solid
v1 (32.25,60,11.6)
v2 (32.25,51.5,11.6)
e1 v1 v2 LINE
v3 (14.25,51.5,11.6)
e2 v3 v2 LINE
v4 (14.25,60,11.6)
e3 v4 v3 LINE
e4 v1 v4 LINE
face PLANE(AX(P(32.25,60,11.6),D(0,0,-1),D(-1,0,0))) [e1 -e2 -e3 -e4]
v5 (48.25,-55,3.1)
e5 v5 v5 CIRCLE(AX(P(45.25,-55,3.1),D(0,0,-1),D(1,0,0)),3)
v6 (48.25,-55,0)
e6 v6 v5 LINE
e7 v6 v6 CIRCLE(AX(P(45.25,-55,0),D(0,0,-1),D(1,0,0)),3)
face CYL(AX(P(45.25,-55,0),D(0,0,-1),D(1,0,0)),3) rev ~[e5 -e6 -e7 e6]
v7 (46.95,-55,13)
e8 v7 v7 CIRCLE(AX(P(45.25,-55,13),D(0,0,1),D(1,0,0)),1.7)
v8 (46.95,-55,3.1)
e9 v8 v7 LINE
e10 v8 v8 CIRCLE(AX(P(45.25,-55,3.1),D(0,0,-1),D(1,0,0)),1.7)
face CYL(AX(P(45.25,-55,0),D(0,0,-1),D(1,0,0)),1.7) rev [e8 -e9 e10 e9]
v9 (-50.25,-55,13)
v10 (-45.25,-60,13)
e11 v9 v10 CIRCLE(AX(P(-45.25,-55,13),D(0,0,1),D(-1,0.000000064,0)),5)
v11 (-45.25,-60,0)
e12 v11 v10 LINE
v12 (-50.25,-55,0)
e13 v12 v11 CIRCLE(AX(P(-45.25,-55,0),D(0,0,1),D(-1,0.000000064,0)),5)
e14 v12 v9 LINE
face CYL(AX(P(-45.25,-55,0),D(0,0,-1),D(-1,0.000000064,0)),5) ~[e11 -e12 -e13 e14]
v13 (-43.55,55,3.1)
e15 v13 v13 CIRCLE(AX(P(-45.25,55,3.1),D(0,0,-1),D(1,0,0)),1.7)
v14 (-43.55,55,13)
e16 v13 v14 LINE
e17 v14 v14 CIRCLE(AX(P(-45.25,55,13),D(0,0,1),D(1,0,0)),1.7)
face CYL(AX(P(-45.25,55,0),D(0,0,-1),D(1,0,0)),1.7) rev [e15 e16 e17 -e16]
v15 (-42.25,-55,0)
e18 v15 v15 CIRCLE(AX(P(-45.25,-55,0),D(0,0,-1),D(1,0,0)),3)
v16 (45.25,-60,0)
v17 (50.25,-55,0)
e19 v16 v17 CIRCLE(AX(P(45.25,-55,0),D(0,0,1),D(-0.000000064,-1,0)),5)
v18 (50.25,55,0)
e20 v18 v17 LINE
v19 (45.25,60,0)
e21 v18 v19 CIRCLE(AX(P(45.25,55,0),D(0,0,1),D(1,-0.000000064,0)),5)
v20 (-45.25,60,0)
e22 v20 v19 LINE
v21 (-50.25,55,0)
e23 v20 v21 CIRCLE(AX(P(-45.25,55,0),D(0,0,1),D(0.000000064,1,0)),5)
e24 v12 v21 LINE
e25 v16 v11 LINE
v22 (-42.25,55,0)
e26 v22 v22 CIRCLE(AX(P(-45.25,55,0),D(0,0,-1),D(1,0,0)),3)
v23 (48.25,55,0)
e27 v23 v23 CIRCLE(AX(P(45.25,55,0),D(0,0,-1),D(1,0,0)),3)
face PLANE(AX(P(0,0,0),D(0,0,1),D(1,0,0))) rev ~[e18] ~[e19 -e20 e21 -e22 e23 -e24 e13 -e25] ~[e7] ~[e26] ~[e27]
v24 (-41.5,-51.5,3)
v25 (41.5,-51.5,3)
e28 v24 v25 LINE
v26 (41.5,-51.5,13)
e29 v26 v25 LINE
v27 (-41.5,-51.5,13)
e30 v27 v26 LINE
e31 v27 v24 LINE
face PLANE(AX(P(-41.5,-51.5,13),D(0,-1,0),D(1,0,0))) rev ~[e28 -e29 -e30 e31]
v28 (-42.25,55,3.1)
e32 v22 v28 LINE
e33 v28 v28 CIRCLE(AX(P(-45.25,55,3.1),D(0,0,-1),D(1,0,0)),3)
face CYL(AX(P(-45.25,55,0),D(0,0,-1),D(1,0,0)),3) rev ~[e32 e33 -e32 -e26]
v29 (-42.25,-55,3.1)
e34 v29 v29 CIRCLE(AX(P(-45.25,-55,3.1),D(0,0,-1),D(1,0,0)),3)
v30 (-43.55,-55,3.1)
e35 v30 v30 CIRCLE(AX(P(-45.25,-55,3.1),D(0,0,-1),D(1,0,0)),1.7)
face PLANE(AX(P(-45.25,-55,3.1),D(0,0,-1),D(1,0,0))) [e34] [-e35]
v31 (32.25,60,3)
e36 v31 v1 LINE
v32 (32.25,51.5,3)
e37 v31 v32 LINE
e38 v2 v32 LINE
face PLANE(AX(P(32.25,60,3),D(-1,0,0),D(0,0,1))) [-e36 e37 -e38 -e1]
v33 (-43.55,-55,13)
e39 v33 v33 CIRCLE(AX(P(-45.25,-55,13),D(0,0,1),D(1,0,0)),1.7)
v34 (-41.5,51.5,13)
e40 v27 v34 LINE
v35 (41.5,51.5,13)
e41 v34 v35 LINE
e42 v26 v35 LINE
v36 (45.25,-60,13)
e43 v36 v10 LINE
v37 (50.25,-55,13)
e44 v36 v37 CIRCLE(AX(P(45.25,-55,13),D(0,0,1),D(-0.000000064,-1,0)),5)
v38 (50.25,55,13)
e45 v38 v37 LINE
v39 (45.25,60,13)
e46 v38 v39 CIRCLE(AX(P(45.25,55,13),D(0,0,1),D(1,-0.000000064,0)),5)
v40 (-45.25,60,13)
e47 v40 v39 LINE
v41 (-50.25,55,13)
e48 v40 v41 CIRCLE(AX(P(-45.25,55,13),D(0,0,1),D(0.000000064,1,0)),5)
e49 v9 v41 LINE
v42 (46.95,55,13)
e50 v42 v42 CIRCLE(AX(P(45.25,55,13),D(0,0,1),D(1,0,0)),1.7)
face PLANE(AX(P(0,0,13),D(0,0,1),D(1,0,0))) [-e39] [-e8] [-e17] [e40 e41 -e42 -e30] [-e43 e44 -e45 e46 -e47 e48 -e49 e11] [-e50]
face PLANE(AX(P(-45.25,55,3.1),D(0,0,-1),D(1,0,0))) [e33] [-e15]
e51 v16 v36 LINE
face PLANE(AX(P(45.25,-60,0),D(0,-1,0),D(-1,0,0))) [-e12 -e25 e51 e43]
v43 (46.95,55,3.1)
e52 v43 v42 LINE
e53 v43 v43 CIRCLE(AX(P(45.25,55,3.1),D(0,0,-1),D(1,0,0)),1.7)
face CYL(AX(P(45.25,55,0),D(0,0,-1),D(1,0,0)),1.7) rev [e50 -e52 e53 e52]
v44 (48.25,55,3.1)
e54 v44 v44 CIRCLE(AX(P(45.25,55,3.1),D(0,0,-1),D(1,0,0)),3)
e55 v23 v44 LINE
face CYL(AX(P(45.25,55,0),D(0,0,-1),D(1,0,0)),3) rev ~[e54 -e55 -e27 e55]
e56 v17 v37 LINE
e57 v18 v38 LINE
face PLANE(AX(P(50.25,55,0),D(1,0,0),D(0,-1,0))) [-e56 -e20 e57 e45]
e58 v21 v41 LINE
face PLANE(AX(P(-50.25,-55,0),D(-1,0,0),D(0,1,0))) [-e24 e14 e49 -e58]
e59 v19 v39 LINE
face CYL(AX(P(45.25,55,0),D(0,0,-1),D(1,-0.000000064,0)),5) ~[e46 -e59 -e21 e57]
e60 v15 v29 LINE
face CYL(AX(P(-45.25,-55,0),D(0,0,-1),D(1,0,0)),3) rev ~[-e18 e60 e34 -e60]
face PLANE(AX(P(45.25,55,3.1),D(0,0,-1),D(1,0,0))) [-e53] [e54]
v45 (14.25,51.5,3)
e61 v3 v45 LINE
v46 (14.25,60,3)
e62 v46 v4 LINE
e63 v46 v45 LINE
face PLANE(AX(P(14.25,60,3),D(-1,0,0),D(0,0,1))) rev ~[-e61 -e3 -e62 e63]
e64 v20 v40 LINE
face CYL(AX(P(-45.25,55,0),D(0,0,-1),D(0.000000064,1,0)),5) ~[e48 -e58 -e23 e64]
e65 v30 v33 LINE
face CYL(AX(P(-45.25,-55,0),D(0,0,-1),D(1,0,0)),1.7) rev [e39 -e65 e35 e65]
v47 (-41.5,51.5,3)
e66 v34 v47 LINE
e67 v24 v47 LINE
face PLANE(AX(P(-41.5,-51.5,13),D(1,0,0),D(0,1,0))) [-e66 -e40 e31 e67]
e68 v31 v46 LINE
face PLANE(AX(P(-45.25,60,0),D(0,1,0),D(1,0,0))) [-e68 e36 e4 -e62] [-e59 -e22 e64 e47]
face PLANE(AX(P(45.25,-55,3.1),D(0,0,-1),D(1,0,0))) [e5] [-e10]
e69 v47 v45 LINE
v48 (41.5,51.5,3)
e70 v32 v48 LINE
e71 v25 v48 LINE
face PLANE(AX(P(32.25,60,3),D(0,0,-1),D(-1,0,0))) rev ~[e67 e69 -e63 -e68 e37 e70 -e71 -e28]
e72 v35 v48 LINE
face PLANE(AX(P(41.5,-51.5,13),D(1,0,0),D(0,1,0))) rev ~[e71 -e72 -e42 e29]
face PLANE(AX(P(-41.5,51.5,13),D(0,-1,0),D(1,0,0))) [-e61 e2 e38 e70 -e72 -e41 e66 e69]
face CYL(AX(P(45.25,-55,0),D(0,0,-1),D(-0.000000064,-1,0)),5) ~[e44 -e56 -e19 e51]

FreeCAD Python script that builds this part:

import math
import FreeCAD as App
import Part
import Sketcher
from FreeCAD import Vector

doc = App.newDocument("Part")
params = doc.addObject("Spreadsheet::Sheet", "Params")
for row, (alias, value) in enumerate([
    ("sketch1_radius", "5 mm"),
    ("sketch1_diameter", "3.4 mm"),
    ("sketch1_height", "110 mm"),
    ("sketch1_width", "90.5 mm"),
    ("pad1_length", "13 mm"),
    ("sketch2_width", "83 mm"),
    ("sketch2_height", "103 mm"),
    ("pocket1_length", "10 mm"),
    ("sketch3_width", "18 mm"),
    ("sketch3_height", "8.6 mm"),
    ("pocket2_length", "11 mm"),
    ("sketch4_diameter", "6 mm"),
    ("pocket3_length", "3.1 mm"),
    ("sketch5_diameter", "6 mm"),
    ("pocket4_length", "3.1 mm"),
    ("sketch6_diameter", "6 mm"),
    ("pocket5_length", "3.1 mm"),
    ("sketch7_diameter", "6 mm"),
    ("pocket6_length", "3.1 mm"),
], start=1):
    params.set(f"A{row}", alias)
    params.set(f"B{row}", "=" + value)
    params.setAlias(f"B{row}", alias)

body = doc.addObject("PartDesign::Body", "Body")

sketch1 = body.newObject("Sketcher::SketchObject", "Sketch")
sketch1.AttachmentSupport = (doc.getObject("XY_Plane"), [""])
sketch1.MapMode = "FlatFace"
sketch1.addGeometry([
    Part.ArcOfCircle(Part.Circle(Vector(-45.3, 55, 0), Vector(0, 0, 1), 5), math.radians(90), math.radians(180)),
    Part.LineSegment(Vector(-50.2, 55, 0), Vector(-50.2, -55, 0)),
    Part.ArcOfCircle(Part.Circle(Vector(-45.3, -55, 0), Vector(0, 0, 1), 5), math.radians(180), math.radians(270)),
    Part.LineSegment(Vector(-45.2, -60, 0), Vector(45.2, -60, 0)),
    Part.ArcOfCircle(Part.Circle(Vector(45.3, -55, 0), Vector(0, 0, 1), 5), math.radians(-90), math.radians(0)),
    Part.LineSegment(Vector(50.2, -55, 0), Vector(50.2, 55, 0)),
    Part.ArcOfCircle(Part.Circle(Vector(45.3, 55, 0), Vector(0, 0, 1), 5), math.radians(0), math.radians(90)),
    Part.LineSegment(Vector(45.2, 60, 0), Vector(-45.2, 60, 0)),
    Part.Circle(Vector(-45.2, -55, 0), Vector(0, 0, 1), 1.7),
    Part.Circle(Vector(45.2, -55, 0), Vector(0, 0, 1), 1.7),
    Part.Circle(Vector(-45.2, 55, 0), Vector(0, 0, 1), 1.7),
    Part.Circle(Vector(45.2, 55, 0), Vector(0, 0, 1), 1.7),
], False)
sketch1.addConstraint([
    Sketcher.Constraint("Tangent", 0, 2, 1, 1),
    Sketcher.Constraint("Tangent", 1, 2, 2, 1),
    Sketcher.Constraint("Tangent", 2, 2, 3, 1),
    Sketcher.Constraint("Tangent", 3, 2, 4, 1),
    Sketcher.Constraint("Tangent", 4, 2, 5, 1),
    Sketcher.Constraint("Tangent", 5, 2, 6, 1),
    Sketcher.Constraint("Tangent", 6, 2, 7, 1),
    Sketcher.Constraint("Tangent", 7, 2, 0, 1),
    Sketcher.Constraint("Vertical", 1),
    Sketcher.Constraint("Horizontal", 3),
    Sketcher.Constraint("Vertical", 5),
    Sketcher.Constraint("Horizontal", 7),
    Sketcher.Constraint("Coincident", 8, 3, 2, 3),
    Sketcher.Constraint("Coincident", 9, 3, 4, 3),
    Sketcher.Constraint("Coincident", 10, 3, 0, 3),
    Sketcher.Constraint("Coincident", 11, 3, 6, 3),
    Sketcher.Constraint("Equal", 0, 2),
    Sketcher.Constraint("Equal", 2, 4),
    Sketcher.Constraint("Equal", 4, 6),
    Sketcher.Constraint("Equal", 8, 9),
    Sketcher.Constraint("Equal", 9, 10),
    Sketcher.Constraint("Equal", 10, 11),
    Sketcher.Constraint("Symmetric", 0, 3, 4, 3, -1, 1),
    Sketcher.Constraint("Radius", 0, 5.0),
    Sketcher.Constraint("Diameter", 8, 3.4),
    Sketcher.Constraint("DistanceY", 1, 2, 1, 1, 110.0),
    Sketcher.Constraint("DistanceX", 3, 1, 3, 2, 90.5),
])
sketch1.setExpression("Constraints[23]", "Params.sketch1_radius")
sketch1.setExpression("Constraints[24]", "Params.sketch1_diameter")
sketch1.setExpression("Constraints[25]", "Params.sketch1_height")
sketch1.setExpression("Constraints[26]", "Params.sketch1_width")
pad1 = body.newObject("PartDesign::Pad", "Pad")
pad1.Profile = sketch1
pad1.setExpression("Length", "Params.pad1_length")

sketch2 = body.newObject("Sketcher::SketchObject", "Sketch001")
sketch2.AttachmentSupport = (doc.getObject("XY_Plane"), [""])
sketch2.MapMode = "FlatFace"
sketch2.AttachmentOffset = App.Placement(Vector(0, 0, 13), App.Rotation())
sketch2.addGeometry([
    Part.LineSegment(Vector(-42, 52, 0), Vector(-42, -52, 0)),
    Part.LineSegment(Vector(-42, -52, 0), Vector(42, -52, 0)),
    Part.LineSegment(Vector(42, -52, 0), Vector(42, 52, 0)),
    Part.LineSegment(Vector(42, 52, 0), Vector(-42, 52, 0)),
], False)
sketch2.addConstraint([
    Sketcher.Constraint("Coincident", 0, 2, 1, 1),
    Sketcher.Constraint("Coincident", 1, 2, 2, 1),
    Sketcher.Constraint("Coincident", 2, 2, 3, 1),
    Sketcher.Constraint("Coincident", 3, 2, 0, 1),
    Sketcher.Constraint("Vertical", 0),
    Sketcher.Constraint("Horizontal", 1),
    Sketcher.Constraint("Vertical", 2),
    Sketcher.Constraint("Horizontal", 3),
    Sketcher.Constraint("Symmetric", 0, 2, 2, 2, -1, 1),
    Sketcher.Constraint("DistanceX", 1, 1, 1, 2, 83.0),
    Sketcher.Constraint("DistanceY", 0, 2, 0, 1, 103.0),
])
sketch2.setExpression("Constraints[9]", "Params.sketch2_width")
sketch2.setExpression("Constraints[10]", "Params.sketch2_height")
pocket1 = body.newObject("PartDesign::Pocket", "Pocket")
pocket1.Profile = sketch2
pocket1.setExpression("Length", "Params.pocket1_length")

sketch3 = body.newObject("Sketcher::SketchObject", "Sketch002")
sketch3.AttachmentSupport = (doc.getObject("XZ_Plane"), [""])
sketch3.MapMode = "FlatFace"
sketch3.AttachmentOffset = App.Placement(Vector(0, 0, -60), App.Rotation())
sketch3.addGeometry([
    Part.LineSegment(Vector(32, 12, 0), Vector(32, 3, 0)),
    Part.LineSegment(Vector(32, 3, 0), Vector(14, 3, 0)),
    Part.LineSegment(Vector(14, 3, 0), Vector(14, 12, 0)),
    Part.LineSegment(Vector(14, 12, 0), Vector(32, 12, 0)),
], False)
sketch3.addConstraint([
    Sketcher.Constraint("Coincident", 0, 2, 1, 1),
    Sketcher.Constraint("Coincident", 1, 2, 2, 1),
    Sketcher.Constraint("Coincident", 2, 2, 3, 1),
    Sketcher.Constraint("Coincident", 3, 2, 0, 1),
    Sketcher.Constraint("Vertical", 0),
    Sketcher.Constraint("Horizontal", 1),
    Sketcher.Constraint("Vertical", 2),
    Sketcher.Constraint("Horizontal", 3),
    Sketcher.Constraint("DistanceX", 1, 2, 1, 1, 18.0),
    Sketcher.Constraint("DistanceY", 0, 2, 0, 1, 8.6),
    Sketcher.Constraint("DistanceY", -1, 1, 0, 2, 3.0),
    Sketcher.Constraint("DistanceX", -1, 1, 0, 2, 32.25),
])
sketch3.setExpression("Constraints[8]", "Params.sketch3_width")
sketch3.setExpression("Constraints[9]", "Params.sketch3_height")
pocket2 = body.newObject("PartDesign::Pocket", "Pocket001")
pocket2.Profile = sketch3
pocket2.setExpression("Length", "Params.pocket2_length")
pocket2.Reversed = True

sketch4 = body.newObject("Sketcher::SketchObject", "Sketch003")
sketch4.AttachmentSupport = (doc.getObject("XY_Plane"), [""])
sketch4.MapMode = "FlatFace"
sketch4.addGeometry(Part.Circle(Vector(-45.2, 55, 0), Vector(0, 0, 1), 3), False)
sketch4.addConstraint([
    Sketcher.Constraint("Diameter", 0, 6.0),
    Sketcher.Constraint("DistanceY", -1, 1, 0, 3, 55.0),
    Sketcher.Constraint("DistanceX", 0, 3, -1, 1, 45.25),
])
sketch4.setExpression("Constraints[0]", "Params.sketch4_diameter")
pocket3 = body.newObject("PartDesign::Pocket", "Pocket002")
pocket3.Profile = sketch4
pocket3.setExpression("Length", "Params.pocket3_length")
pocket3.Reversed = True

sketch5 = body.newObject("Sketcher::SketchObject", "Sketch004")
sketch5.AttachmentSupport = (doc.getObject("XY_Plane"), [""])
sketch5.MapMode = "FlatFace"
sketch5.addGeometry(Part.Circle(Vector(-45.2, -55, 0), Vector(0, 0, 1), 3), False)
sketch5.addConstraint([
    Sketcher.Constraint("Diameter", 0, 6.0),
    Sketcher.Constraint("DistanceY", 0, 3, -1, 1, 55.0),
    Sketcher.Constraint("DistanceX", 0, 3, -1, 1, 45.25),
])
sketch5.setExpression("Constraints[0]", "Params.sketch5_diameter")
pocket4 = body.newObject("PartDesign::Pocket", "Pocket003")
pocket4.Profile = sketch5
pocket4.setExpression("Length", "Params.pocket4_length")
pocket4.Reversed = True

sketch6 = body.newObject("Sketcher::SketchObject", "Sketch005")
sketch6.AttachmentSupport = (doc.getObject("XY_Plane"), [""])
sketch6.MapMode = "FlatFace"
sketch6.addGeometry(Part.Circle(Vector(45.2, -55, 0), Vector(0, 0, 1), 3), False)
sketch6.addConstraint([
    Sketcher.Constraint("Diameter", 0, 6.0),
    Sketcher.Constraint("DistanceY", 0, 3, -1, 1, 55.0),
    Sketcher.Constraint("DistanceX", -1, 1, 0, 3, 45.25),
])
sketch6.setExpression("Constraints[0]", "Params.sketch6_diameter")
pocket5 = body.newObject("PartDesign::Pocket", "Pocket004")
pocket5.Profile = sketch6
pocket5.setExpression("Length", "Params.pocket5_length")
pocket5.Reversed = True

sketch7 = body.newObject("Sketcher::SketchObject", "Sketch006")
sketch7.AttachmentSupport = (doc.getObject("XY_Plane"), [""])
sketch7.MapMode = "FlatFace"
sketch7.addGeometry(Part.Circle(Vector(45.2, 55, 0), Vector(0, 0, 1), 3), False)
sketch7.addConstraint([
    Sketcher.Constraint("Diameter", 0, 6.0),
    Sketcher.Constraint("DistanceY", -1, 1, 0, 3, 55.0),
    Sketcher.Constraint("DistanceX", -1, 1, 0, 3, 45.25),
])
sketch7.setExpression("Constraints[0]", "Params.sketch7_diameter")
pocket6 = body.newObject("PartDesign::Pocket", "Pocket005")
pocket6.Profile = sketch7
pocket6.setExpression("Length", "Params.pocket6_length")
pocket6.Reversed = True

doc.recompute()
